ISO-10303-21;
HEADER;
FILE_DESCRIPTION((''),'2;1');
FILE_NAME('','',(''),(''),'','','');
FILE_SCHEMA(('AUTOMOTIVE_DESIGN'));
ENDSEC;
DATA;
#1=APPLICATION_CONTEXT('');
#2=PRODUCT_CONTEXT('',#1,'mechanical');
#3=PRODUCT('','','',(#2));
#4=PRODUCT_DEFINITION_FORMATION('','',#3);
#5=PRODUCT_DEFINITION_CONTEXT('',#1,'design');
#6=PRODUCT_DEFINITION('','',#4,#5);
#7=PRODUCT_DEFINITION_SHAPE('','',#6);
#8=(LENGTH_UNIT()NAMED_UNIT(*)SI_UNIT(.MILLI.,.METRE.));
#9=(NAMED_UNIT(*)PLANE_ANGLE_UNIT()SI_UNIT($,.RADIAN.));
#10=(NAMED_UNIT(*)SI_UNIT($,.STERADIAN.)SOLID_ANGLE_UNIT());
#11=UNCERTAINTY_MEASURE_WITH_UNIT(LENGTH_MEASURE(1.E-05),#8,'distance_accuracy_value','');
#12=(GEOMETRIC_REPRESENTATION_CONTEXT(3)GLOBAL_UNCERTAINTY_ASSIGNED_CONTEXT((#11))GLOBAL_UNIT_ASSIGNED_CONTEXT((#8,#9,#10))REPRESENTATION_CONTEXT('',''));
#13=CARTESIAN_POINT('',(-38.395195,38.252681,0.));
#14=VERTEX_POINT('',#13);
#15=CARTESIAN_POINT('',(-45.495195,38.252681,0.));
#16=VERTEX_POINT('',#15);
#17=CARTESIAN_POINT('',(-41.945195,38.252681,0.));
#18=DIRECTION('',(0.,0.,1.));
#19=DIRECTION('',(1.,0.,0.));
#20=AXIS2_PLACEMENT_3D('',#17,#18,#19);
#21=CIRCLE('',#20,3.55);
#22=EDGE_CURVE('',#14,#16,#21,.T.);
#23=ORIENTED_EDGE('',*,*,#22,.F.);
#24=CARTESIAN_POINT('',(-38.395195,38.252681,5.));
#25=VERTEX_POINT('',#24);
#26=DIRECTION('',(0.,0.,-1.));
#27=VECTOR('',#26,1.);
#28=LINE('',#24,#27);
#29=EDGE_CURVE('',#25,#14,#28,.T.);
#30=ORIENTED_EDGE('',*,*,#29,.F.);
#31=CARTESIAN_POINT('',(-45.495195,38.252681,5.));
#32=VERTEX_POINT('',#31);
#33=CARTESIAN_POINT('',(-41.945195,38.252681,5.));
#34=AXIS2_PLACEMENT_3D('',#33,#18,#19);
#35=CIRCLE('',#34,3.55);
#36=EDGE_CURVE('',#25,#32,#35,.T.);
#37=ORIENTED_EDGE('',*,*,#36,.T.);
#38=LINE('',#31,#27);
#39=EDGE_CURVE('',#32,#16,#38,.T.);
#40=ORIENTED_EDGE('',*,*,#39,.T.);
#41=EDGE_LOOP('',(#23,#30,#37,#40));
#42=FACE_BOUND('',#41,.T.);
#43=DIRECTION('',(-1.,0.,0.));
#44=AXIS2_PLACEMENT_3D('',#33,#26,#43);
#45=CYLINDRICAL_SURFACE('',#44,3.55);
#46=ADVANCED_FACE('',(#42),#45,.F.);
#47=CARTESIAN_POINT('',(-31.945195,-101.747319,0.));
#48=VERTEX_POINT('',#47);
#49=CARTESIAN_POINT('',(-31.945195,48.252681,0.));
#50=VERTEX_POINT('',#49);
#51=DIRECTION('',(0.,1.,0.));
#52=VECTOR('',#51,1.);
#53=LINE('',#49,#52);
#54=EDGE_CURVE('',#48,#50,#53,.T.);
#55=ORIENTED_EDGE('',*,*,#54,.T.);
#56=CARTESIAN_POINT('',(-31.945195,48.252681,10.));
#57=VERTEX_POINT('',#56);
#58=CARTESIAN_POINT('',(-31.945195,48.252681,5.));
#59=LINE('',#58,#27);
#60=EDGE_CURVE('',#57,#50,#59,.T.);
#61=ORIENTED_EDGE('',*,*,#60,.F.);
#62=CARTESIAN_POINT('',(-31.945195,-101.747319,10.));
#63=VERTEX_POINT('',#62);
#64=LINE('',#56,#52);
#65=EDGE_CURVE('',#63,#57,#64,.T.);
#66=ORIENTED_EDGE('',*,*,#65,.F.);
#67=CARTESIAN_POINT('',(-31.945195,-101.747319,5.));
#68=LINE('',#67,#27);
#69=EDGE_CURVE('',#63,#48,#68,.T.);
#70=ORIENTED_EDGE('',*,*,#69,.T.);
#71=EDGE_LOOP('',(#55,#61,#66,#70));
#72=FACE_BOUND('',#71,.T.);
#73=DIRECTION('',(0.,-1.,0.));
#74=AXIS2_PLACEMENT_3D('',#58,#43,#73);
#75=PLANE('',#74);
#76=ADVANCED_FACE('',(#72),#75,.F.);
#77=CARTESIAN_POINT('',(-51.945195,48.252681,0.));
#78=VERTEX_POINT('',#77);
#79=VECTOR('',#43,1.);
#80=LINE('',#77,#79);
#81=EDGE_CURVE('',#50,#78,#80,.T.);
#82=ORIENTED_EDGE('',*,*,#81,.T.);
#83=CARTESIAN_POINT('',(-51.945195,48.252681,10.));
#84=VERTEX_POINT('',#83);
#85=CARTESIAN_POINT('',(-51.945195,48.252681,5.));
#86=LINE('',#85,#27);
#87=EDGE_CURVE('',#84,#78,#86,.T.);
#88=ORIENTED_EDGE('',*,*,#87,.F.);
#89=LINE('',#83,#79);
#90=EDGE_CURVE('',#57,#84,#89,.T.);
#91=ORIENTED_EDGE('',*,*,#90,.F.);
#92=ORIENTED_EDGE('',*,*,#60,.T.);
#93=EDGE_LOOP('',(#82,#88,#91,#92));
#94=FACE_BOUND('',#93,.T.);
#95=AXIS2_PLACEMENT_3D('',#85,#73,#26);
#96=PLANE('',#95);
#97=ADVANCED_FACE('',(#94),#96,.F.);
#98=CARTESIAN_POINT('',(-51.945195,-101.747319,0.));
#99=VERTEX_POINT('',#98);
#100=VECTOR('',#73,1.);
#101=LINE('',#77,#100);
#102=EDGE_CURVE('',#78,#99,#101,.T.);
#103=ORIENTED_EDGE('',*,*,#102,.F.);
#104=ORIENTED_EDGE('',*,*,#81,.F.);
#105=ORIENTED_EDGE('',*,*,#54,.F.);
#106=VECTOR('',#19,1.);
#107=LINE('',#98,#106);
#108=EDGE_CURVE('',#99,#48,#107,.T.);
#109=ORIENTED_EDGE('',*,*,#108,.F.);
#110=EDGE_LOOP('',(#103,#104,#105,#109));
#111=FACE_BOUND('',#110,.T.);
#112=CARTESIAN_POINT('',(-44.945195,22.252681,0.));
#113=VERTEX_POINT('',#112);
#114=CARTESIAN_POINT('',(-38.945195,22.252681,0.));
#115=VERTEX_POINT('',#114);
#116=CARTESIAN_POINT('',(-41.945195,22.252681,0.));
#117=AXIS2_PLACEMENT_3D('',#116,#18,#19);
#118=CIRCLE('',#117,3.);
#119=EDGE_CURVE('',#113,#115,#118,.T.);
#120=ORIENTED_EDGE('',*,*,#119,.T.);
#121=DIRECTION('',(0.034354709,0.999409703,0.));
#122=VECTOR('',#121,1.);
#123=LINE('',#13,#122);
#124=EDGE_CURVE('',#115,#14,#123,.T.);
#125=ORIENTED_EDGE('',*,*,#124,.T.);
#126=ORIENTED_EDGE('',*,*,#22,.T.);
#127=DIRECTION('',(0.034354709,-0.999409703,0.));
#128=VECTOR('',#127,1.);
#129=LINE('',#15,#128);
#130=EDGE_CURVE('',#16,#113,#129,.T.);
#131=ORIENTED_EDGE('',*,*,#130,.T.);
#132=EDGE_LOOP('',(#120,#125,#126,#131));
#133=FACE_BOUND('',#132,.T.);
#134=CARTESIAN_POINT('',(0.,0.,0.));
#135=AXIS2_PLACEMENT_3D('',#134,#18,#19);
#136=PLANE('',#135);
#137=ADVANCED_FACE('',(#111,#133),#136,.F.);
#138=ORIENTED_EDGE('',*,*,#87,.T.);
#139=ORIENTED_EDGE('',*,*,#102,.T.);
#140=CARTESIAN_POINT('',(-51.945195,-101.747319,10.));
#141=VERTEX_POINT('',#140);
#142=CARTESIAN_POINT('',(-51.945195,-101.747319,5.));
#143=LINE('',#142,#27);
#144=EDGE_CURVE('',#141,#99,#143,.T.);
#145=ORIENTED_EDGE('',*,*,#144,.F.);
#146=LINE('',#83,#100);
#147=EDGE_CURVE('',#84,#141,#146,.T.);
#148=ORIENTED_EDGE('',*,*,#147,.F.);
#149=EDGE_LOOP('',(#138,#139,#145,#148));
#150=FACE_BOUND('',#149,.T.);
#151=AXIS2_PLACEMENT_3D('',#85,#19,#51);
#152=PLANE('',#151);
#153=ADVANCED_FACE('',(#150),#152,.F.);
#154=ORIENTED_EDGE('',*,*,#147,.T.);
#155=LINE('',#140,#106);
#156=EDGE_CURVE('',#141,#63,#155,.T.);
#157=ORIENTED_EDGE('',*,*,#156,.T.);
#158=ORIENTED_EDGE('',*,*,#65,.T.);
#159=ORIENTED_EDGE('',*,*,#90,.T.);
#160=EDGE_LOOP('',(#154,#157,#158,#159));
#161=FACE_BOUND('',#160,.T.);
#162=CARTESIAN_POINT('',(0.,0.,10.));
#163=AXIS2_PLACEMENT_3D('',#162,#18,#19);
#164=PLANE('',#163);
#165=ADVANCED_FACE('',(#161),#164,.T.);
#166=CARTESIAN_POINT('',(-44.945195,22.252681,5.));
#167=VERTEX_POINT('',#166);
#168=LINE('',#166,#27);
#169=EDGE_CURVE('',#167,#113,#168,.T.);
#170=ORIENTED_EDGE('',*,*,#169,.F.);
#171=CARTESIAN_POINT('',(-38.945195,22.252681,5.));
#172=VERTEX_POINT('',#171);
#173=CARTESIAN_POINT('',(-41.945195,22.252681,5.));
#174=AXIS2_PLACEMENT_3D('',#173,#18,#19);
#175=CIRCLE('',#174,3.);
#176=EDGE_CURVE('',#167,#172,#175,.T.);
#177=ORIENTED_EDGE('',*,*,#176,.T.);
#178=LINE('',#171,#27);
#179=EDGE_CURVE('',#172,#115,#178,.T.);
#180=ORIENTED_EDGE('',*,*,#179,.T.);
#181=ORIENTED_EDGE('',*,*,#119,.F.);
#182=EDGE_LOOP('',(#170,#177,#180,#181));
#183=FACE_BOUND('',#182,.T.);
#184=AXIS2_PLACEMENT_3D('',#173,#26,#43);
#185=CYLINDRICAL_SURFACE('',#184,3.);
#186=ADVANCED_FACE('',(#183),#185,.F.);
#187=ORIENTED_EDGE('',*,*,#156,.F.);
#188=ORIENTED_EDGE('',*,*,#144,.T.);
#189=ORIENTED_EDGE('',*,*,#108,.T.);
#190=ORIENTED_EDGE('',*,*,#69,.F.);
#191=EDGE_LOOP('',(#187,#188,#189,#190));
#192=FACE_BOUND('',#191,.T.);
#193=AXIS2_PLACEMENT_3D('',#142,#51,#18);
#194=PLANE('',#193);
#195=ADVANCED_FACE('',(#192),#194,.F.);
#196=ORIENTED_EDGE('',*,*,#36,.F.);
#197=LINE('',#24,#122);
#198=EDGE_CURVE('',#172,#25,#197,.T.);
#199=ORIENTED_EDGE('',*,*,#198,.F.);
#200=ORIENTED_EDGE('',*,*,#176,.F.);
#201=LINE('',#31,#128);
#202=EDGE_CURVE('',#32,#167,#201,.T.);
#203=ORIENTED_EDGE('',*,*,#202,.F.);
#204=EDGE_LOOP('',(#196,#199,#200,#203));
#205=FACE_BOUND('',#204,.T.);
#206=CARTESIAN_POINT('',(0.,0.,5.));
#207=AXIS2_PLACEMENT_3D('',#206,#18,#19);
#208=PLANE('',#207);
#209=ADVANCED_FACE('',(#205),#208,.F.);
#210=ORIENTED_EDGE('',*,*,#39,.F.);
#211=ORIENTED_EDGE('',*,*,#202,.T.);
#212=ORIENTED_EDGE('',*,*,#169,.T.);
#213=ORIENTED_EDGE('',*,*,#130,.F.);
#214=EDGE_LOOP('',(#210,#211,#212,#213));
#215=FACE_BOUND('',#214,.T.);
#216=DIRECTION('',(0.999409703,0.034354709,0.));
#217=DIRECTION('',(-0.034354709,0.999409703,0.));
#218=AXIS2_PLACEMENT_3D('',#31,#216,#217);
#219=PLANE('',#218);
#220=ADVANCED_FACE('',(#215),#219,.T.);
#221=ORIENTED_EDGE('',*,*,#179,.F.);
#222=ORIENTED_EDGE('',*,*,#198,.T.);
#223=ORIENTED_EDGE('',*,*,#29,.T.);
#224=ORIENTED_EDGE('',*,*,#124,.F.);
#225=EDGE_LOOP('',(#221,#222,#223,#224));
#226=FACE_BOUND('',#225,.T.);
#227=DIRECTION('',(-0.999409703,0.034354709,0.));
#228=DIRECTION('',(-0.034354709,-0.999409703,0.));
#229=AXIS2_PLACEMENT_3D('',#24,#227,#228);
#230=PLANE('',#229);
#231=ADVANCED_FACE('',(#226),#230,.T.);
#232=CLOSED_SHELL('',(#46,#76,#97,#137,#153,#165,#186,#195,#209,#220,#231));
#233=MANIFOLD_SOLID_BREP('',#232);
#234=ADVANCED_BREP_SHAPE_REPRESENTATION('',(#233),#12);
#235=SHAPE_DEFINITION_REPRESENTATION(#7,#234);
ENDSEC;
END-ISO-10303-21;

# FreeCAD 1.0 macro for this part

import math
import FreeCAD as App
import Part
import Sketcher

V = App.Vector
Q = App.Units.Quantity


def add_polygon(sketch, points):
    """Adds a closed chain of lines whose ends are joined by coincident constraints."""
    first, n = sketch.GeometryCount, len(points)
    for a, b in zip(points, points[1:] + points[:1]):
        sketch.addGeometry(Part.LineSegment(App.Vector(*a, 0), App.Vector(*b, 0)), False)
    for i in range(n):
        sketch.addConstraint(Sketcher.Constraint("Coincident", first + i, 2, first + (i + 1) % n, 1))

doc = App.newDocument("Part")
params = doc.addObject("Spreadsheet::Sheet", "Params")
for row, (alias, value) in enumerate([
    ("sketch1_radius", "3 mm"),
    ("sketch1_width", "20 mm"),
    ("sketch1_height", "150 mm"),
    ("sketch1_radius2", "3.55 mm"),
    ("pad1_length", "5 mm"),
    ("sketch2_width", "20 mm"),
    ("sketch2_height", "150 mm"),
    ("pad2_length", "5 mm"),
], start=1):
    params.set(f"A{row}", alias)
    params.set(f"B{row}", "=" + value)
    params.setAlias(f"B{row}", alias)

body = doc.addObject("PartDesign::Body", "Body")

sketch1 = doc.addObject("Sketcher::SketchObject", "Sketch")
body.addObject(sketch1)
sketch1.AttachmentSupport = (doc.XY_Plane, [""])
sketch1.MapMode = "FlatFace"
add_polygon(sketch1, [(-51.9, 48.3), (-51.9, -101.7), (-31.9, -101.7), (-31.9, 48.3)])
sketch1.addGeometry(Part.LineSegment(V(-44.9, 22.3, 0), V(-45.5, 38.3, 0)), False)
sketch1.addGeometry(Part.ArcOfCircle(Part.Circle(V(-41.9, 38.3, 0), V(0, 0, 1), 3.5), math.radians(0), math.radians(180)), False)
sketch1.addGeometry(Part.LineSegment(V(-38.4, 38.3, 0), V(-38.9, 22.3, 0)), False)
sketch1.addGeometry(Part.ArcOfCircle(Part.Circle(V(-41.9, 22.3, 0), V(0, 0, 1), 3), math.radians(180), math.radians(360)), False)
sketch1.addConstraint(Sketcher.Constraint("Coincident", 4, 2, 5, 2))
sketch1.addConstraint(Sketcher.Constraint("Coincident", 5, 1, 6, 1))
sketch1.addConstraint(Sketcher.Constraint("Coincident", 6, 2, 7, 2))
sketch1.addConstraint(Sketcher.Constraint("Coincident", 7, 1, 4, 1))
sketch1.addConstraint(Sketcher.Constraint("Vertical", 0))
sketch1.addConstraint(Sketcher.Constraint("Horizontal", 1))
sketch1.addConstraint(Sketcher.Constraint("Vertical", 2))
sketch1.addConstraint(Sketcher.Constraint("Horizontal", 3))
sketch1.addConstraint(Sketcher.Constraint("Horizontal", 5, 3, 4, 2))
sketch1.addConstraint(Sketcher.Constraint("Horizontal", 4, 2, 5, 1))
sketch1.addConstraint(Sketcher.Constraint("Horizontal", 7, 3, 6, 2))
sketch1.addConstraint(Sketcher.Constraint("Horizontal", 6, 2, 7, 1))
sketch1.addConstraint(Sketcher.Constraint("Vertical", 5, 3, 7, 3))
sketch1.addConstraint(Sketcher.Constraint("Radius", 7, Q("3 mm")))
sketch1.addConstraint(Sketcher.Constraint("DistanceX", 1, 1, 1, 2, Q("20 mm")))
sketch1.addConstraint(Sketcher.Constraint("DistanceY", 0, 2, 0, 1, Q("150 mm")))
sketch1.addConstraint(Sketcher.Constraint("Radius", 5, Q("3.55 mm")))
sketch1.addConstraint(Sketcher.Constraint("DistanceY", 7, 3, 5, 3, Q("16 mm")))
sketch1.addConstraint(Sketcher.Constraint("DistanceX", 0, 2, 7, 3, Q("10 mm")))
sketch1.addConstraint(Sketcher.Constraint("DistanceY", 0, 2, 7, 3, Q("124 mm")))
sketch1.addConstraint(Sketcher.Constraint("DistanceY", -1, 1, 5, 3, Q("38.252681 mm")))
sketch1.addConstraint(Sketcher.Constraint("DistanceX", 5, 3, -1, 1, Q("41.945195 mm")))
sketch1.setExpression("Constraints[17]", "Params.sketch1_radius")
sketch1.setExpression("Constraints[18]", "Params.sketch1_width")
sketch1.setExpression("Constraints[19]", "Params.sketch1_height")
sketch1.setExpression("Constraints[20]", "Params.sketch1_radius2")
pad1 = doc.addObject("PartDesign::Pad", "Pad")
body.addObject(pad1)
pad1.Profile = sketch1
pad1.setExpression("Length", "Params.pad1_length")

sketch2 = doc.addObject("Sketcher::SketchObject", "Sketch001")
body.addObject(sketch2)
sketch2.AttachmentSupport = (doc.XY_Plane, [""])
sketch2.MapMode = "FlatFace"
sketch2.AttachmentOffset = App.Placement(V(0, 0, 5), App.Rotation())
add_polygon(sketch2, [(-52, 48), (-52, -102), (-32, -102), (-32, 48)])
sketch2.addConstraint(Sketcher.Constraint("Vertical", 0))
sketch2.addConstraint(Sketcher.Constraint("Horizontal", 1))
sketch2.addConstraint(Sketcher.Constraint("Vertical", 2))
sketch2.addConstraint(Sketcher.Constraint("Horizontal", 3))
sketch2.addConstraint(Sketcher.Constraint("DistanceX", 1, 1, 1, 2, Q("20 mm")))
sketch2.addConstraint(Sketcher.Constraint("DistanceY", 0, 2, 0, 1, Q("150 mm")))
sketch2.addConstraint(Sketcher.Constraint("DistanceY", 0, 2, -1, 1, Q("101.747319 mm")))
sketch2.addConstraint(Sketcher.Constraint("DistanceX", 0, 2, -1, 1, Q("51.945195 mm")))
sketch2.setExpression("Constraints[8]", "Params.sketch2_width")
sketch2.setExpression("Constraints[9]", "Params.sketch2_height")
pad2 = doc.addObject("PartDesign::Pad", "Pad001")
body.addObject(pad2)
pad2.Profile = sketch2
pad2.setExpression("Length", "Params.pad2_length")

doc.recompute()
